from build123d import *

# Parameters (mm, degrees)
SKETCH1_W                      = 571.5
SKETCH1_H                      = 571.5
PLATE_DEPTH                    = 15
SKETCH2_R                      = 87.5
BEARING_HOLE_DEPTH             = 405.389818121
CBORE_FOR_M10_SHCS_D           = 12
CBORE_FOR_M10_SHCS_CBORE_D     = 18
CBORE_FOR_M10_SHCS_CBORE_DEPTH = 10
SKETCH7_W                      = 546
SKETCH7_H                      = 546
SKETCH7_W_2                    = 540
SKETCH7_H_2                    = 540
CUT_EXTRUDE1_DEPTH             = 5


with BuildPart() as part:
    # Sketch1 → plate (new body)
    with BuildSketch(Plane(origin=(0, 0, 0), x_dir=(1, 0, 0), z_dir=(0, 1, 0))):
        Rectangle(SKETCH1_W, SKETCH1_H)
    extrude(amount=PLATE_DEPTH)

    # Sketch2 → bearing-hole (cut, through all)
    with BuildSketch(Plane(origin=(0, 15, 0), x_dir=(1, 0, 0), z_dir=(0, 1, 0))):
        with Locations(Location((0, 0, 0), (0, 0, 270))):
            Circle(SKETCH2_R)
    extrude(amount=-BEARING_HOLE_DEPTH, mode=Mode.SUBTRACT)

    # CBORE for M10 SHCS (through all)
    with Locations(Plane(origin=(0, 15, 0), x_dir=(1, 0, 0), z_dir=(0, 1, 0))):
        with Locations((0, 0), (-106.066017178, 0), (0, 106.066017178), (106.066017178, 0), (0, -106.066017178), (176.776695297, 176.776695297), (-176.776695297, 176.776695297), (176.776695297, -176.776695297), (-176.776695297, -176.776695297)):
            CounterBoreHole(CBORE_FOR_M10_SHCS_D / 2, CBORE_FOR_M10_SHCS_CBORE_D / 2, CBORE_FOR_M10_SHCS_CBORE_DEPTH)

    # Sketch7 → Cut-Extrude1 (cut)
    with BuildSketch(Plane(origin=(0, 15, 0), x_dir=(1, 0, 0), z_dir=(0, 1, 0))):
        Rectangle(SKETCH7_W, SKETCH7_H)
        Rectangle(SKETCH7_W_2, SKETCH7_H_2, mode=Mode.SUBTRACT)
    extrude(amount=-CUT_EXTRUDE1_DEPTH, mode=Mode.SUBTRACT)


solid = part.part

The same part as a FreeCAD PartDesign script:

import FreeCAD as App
import Part
import Sketcher

V = App.Vector


def add_polygon(sketch, points):
    """Adds a closed chain of lines whose ends are joined by coincident constraints."""
    first, n = sketch.GeometryCount, len(points)
    for a, b in zip(points, points[1:] + points[:1]):
        sketch.addGeometry(Part.LineSegment(App.Vector(*a, 0), App.Vector(*b, 0)), False)
    for i in range(n):
        sketch.addConstraint(Sketcher.Constraint("Coincident", first + i, 2, first + (i + 1) % n, 1))

doc = App.newDocument("Part")
body = doc.addObject("PartDesign::Body", "Body")

sketch1 = doc.addObject("Sketcher::SketchObject", "Sketch")
body.addObject(sketch1)
sketch1.AttachmentSupport = (doc.XZ_Plane, [""])
sketch1.MapMode = "FlatFace"
add_polygon(sketch1, [(-285.75, -285.75), (-285.75, 285.75), (285.75, 285.75), (285.75, -285.75)])
sketch1.addConstraint(Sketcher.Constraint("Vertical", 0))
sketch1.addConstraint(Sketcher.Constraint("Horizontal", 1))
sketch1.addConstraint(Sketcher.Constraint("Vertical", 2))
sketch1.addConstraint(Sketcher.Constraint("Horizontal", 3))
sketch1.addConstraint(Sketcher.Constraint("Symmetric", 0, 2, 2, 2, -1, 1))
sketch1.addConstraint(Sketcher.Constraint("Equal", 3, 0))
sketch1.addConstraint(Sketcher.Constraint("DistanceX", 1, 1, 1, 2, 571.5))
pad1 = doc.addObject("PartDesign::Pad", "Pad")
body.addObject(pad1)
pad1.Profile = sketch1
pad1.Length = 15
pad1.Reversed = True

sketch2 = doc.addObject("Sketcher::SketchObject", "Sketch001")
body.addObject(sketch2)
sketch2.AttachmentSupport = (doc.XZ_Plane, [""])
sketch2.MapMode = "FlatFace"
sketch2.AttachmentOffset = App.Placement(V(0, 0, -15), App.Rotation())
sketch2.addGeometry(Part.Circle(V(0, 0, 0), V(0, 0, 1), 87.5), False)
sketch2.addConstraint(Sketcher.Constraint("Coincident", 0, 3, -1, 1))
sketch2.addConstraint(Sketcher.Constraint("Diameter", 0, 175.0))
pocket1 = doc.addObject("PartDesign::Pocket", "Pocket")
body.addObject(pocket1)
pocket1.Profile = sketch2
pocket1.Type = "ThroughAll"
pocket1.Reversed = True

sketch3 = doc.addObject("Sketcher::SketchObject", "Sketch002")
body.addObject(sketch3)
sketch3.AttachmentSupport = (doc.XZ_Plane, [""])
sketch3.MapMode = "FlatFace"
sketch3.AttachmentOffset = App.Placement(V(0, 0, -15), App.Rotation())
sketch3.addGeometry(Part.Circle(V(0, 0, 0), V(0, 0, 1), 6), False)
sketch3.addGeometry(Part.Circle(V(-106.066017, 0, 0), V(0, 0, 1), 6), False)
sketch3.addGeometry(Part.Circle(V(0, -106.066017, 0), V(0, 0, 1), 6), False)
sketch3.addGeometry(Part.Circle(V(106.066017, 0, 0), V(0, 0, 1), 6), False)
sketch3.addGeometry(Part.Circle(V(0, 106.066017, 0), V(0, 0, 1), 6), False)
sketch3.addGeometry(Part.Circle(V(176.776695, -176.776695, 0), V(0, 0, 1), 6), False)
sketch3.addGeometry(Part.Circle(V(-176.776695, -176.776695, 0), V(0, 0, 1), 6), False)
sketch3.addGeometry(Part.Circle(V(176.776695, 176.776695, 0), V(0, 0, 1), 6), False)
sketch3.addGeometry(Part.Circle(V(-176.776695, 176.776695, 0), V(0, 0, 1), 6), False)
sketch3.addConstraint(Sketcher.Constraint("Coincident", 0, 3, -1, 1))
sketch3.addConstraint(Sketcher.Constraint("Equal", 0, 1))
sketch3.addConstraint(Sketcher.Constraint("Equal", 1, 2))
sketch3.addConstraint(Sketcher.Constraint("Equal", 2, 3))
sketch3.addConstraint(Sketcher.Constraint("Equal", 3, 4))
sketch3.addConstraint(Sketcher.Constraint("Equal", 4, 5))
sketch3.addConstraint(Sketcher.Constraint("Equal", 5, 6))
sketch3.addConstraint(Sketcher.Constraint("Equal", 6, 7))
sketch3.addConstraint(Sketcher.Constraint("Equal", 7, 8))
sketch3.addConstraint(Sketcher.Constraint("Symmetric", 1, 3, 3, 3, -1, 1))
sketch3.addConstraint(Sketcher.Constraint("Symmetric", 2, 3, 4, 3, -1, 1))
sketch3.addConstraint(Sketcher.Constraint("Symmetric", 6, 3, 7, 3, -1, 1))
sketch3.addConstraint(Sketcher.Constraint("Symmetric", 5, 3, 8, 3, -1, 1))
sketch3.addConstraint(Sketcher.Constraint("Symmetric", 5, 3, 6, 3, -2))
sketch3.addConstraint(Sketcher.Constraint("PointOnObject", 1, 3, -1))
sketch3.addConstraint(Sketcher.Constraint("PointOnObject", 2, 3, -2))
sketch3.addConstraint(Sketcher.Constraint("Diameter", 0, 12.0))
sketch3.addConstraint(Sketcher.Constraint("DistanceY", 5, 3, 2, 3, 70.710678))
sketch3.addConstraint(Sketcher.Constraint("DistanceX", 3, 3, 5, 3, 70.710678))
sketch3.addConstraint(Sketcher.Constraint("DistanceX", 1, 3, -1, 1, 106.066017))
sketch3.addConstraint(Sketcher.Constraint("DistanceY", 2, 3, -1, 1, 106.066017))
doc.recompute()
hole = doc.addObject("PartDesign::Hole", "Hole")
body.addObject(hole)
hole.Profile = sketch3
hole.ThreadType = "None"
hole.Diameter = 12
hole.DepthType = "ThroughAll"
hole.HoleCutType = "Counterbore"
hole.HoleCutDiameter = 18
hole.HoleCutDepth = 10
hole.Reversed = True

sketch4 = doc.addObject("Sketcher::SketchObject", "Sketch003")
body.addObject(sketch4)
sketch4.AttachmentSupport = (doc.XZ_Plane, [""])
sketch4.MapMode = "FlatFace"
sketch4.AttachmentOffset = App.Placement(V(0, 0, -15), App.Rotation())
add_polygon(sketch4, [(-273, -273), (-273, 273), (273, 273), (273, -273)])
add_polygon(sketch4, [(270, 270), (-270, 270), (-270, -270), (270, -270)])
sketch4.addConstraint(Sketcher.Constraint("Vertical", 0))
sketch4.addConstraint(Sketcher.Constraint("Horizontal", 1))
sketch4.addConstraint(Sketcher.Constraint("Vertical", 2))
sketch4.addConstraint(Sketcher.Constraint("Horizontal", 3))
sketch4.addConstraint(Sketcher.Constraint("Horizontal", 4))
sketch4.addConstraint(Sketcher.Constraint("Vertical", 5))
sketch4.addConstraint(Sketcher.Constraint("Horizontal", 6))
sketch4.addConstraint(Sketcher.Constraint("Vertical", 7))
sketch4.addConstraint(Sketcher.Constraint("Symmetric", 0, 2, 2, 2, -1, 1))
sketch4.addConstraint(Sketcher.Constraint("Symmetric", 4, 2, 6, 2, -1, 1))
sketch4.addConstraint(Sketcher.Constraint("Equal", 3, 0))
sketch4.addConstraint(Sketcher.Constraint("Equal", 6, 5))
sketch4.addConstraint(Sketcher.Constraint("DistanceX", 1, 1, 1, 2, 546.0))
sketch4.addConstraint(Sketcher.Constraint("DistanceX", 4, 2, 4, 1, 540.0))
pocket2 = doc.addObject("PartDesign::Pocket", "Pocket001")
body.addObject(pocket2)
pocket2.Profile = sketch4
pocket2.Length = 5
pocket2.Reversed = True

doc.recompute()
